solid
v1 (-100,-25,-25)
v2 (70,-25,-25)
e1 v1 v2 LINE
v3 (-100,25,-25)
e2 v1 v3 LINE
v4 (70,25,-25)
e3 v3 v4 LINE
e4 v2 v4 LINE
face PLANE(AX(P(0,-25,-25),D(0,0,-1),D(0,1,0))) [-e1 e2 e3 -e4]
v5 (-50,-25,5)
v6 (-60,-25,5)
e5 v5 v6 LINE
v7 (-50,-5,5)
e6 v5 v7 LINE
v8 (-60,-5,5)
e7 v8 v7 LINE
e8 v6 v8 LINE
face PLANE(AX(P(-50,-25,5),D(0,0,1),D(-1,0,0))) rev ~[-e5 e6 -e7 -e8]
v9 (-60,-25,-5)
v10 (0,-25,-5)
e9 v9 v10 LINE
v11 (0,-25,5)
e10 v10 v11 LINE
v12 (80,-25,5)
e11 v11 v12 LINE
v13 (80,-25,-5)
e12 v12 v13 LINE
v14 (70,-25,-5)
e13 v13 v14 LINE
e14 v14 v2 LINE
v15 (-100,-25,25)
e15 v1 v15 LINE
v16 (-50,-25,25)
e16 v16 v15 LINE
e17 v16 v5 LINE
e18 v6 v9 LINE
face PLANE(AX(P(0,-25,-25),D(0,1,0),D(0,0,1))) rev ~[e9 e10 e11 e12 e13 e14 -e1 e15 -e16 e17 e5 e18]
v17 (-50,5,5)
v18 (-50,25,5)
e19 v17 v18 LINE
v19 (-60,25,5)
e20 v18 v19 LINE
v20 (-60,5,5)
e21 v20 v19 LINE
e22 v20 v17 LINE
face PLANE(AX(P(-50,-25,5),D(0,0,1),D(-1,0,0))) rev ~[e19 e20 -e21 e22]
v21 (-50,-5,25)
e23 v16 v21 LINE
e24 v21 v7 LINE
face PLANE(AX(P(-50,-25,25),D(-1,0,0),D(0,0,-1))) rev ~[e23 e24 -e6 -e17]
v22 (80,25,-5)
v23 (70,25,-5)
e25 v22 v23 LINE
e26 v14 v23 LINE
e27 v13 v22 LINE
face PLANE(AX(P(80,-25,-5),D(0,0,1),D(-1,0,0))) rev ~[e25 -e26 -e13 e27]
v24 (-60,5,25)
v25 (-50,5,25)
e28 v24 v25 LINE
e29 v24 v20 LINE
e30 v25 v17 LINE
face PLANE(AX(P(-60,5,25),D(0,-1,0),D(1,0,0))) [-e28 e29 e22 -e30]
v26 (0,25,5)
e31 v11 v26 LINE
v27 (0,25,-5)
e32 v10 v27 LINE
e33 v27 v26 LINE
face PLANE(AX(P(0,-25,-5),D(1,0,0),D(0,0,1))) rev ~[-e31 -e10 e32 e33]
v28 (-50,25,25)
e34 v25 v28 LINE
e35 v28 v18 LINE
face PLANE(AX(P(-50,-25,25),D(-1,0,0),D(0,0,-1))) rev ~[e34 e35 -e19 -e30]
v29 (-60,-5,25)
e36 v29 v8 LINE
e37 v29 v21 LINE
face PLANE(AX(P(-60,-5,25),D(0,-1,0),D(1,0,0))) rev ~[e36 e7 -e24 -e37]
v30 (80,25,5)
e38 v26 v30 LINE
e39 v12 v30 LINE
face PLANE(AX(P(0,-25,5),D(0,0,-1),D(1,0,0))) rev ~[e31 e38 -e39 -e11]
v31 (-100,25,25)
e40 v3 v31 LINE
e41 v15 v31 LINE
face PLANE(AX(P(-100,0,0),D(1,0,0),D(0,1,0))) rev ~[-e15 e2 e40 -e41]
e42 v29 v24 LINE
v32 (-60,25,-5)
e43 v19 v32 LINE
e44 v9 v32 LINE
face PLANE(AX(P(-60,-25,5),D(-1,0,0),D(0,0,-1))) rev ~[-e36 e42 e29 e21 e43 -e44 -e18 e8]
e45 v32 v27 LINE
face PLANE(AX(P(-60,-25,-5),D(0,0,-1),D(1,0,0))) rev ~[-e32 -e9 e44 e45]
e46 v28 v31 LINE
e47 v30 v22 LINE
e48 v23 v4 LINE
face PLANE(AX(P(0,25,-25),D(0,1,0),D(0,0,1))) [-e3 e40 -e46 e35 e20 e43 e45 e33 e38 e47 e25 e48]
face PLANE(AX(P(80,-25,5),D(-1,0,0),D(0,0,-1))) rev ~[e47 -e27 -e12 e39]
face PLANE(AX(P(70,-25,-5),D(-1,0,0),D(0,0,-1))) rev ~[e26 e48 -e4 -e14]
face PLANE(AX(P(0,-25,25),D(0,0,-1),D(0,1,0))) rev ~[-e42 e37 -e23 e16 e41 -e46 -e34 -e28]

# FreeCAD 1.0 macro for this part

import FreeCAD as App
import Part
import Sketcher
from FreeCAD import Vector

doc = App.newDocument("Part")
body = doc.addObject("PartDesign::Body", "Body")

# Sketch on YZ plane
sketch1 = body.newObject("Sketcher::SketchObject", "Sketch")
sketch1.AttachmentSupport = (doc.getObject("YZ_Plane"), [""])
sketch1.MapMode = "FlatFace"
sketch1.addGeometry([
    Part.LineSegment(Vector(-25, 25, 0), Vector(-25, -25, 0)),
    Part.LineSegment(Vector(-25, -25, 0), Vector(25, -25, 0)),
    Part.LineSegment(Vector(25, -25, 0), Vector(25, 25, 0)),
    Part.LineSegment(Vector(25, 25, 0), Vector(-25, 25, 0)),
], False)
sketch1.addConstraint([
    Sketcher.Constraint("Coincident", 0, 2, 1, 1),
    Sketcher.Constraint("Coincident", 1, 2, 2, 1),
    Sketcher.Constraint("Coincident", 2, 2, 3, 1),
    Sketcher.Constraint("Coincident", 3, 2, 0, 1),
    Sketcher.Constraint("Vertical", 0),
    Sketcher.Constraint("Horizontal", 1),
    Sketcher.Constraint("Vertical", 2),
    Sketcher.Constraint("Horizontal", 3),
    Sketcher.Constraint("Symmetric", 0, 2, 2, 2, -1, 1),
    Sketcher.Constraint("Equal", 3, 0),
    Sketcher.Constraint("DistanceX", 1, 1, 1, 2, 50.0),
])
pad1 = body.newObject("PartDesign::Pad", "Pad")
pad1.Profile = sketch1
pad1.Length = 200
pad1.Midplane = True

# Sketch on XZ plane
sketch2 = body.newObject("Sketcher::SketchObject", "Sketch001")
sketch2.AttachmentSupport = (doc.getObject("XZ_Plane"), [""])
sketch2.MapMode = "FlatFace"
sketch2.AttachmentOffset = App.Placement(Vector(0, 0, 25), App.Rotation())
sketch2.addGeometry([
    Part.LineSegment(Vector(-60, 5, 0), Vector(-60, -5, 0)),  # 0
    Part.LineSegment(Vector(-60, -5, 0), Vector(0, -5, 0)),  # 1
    Part.LineSegment(Vector(0, -5, 0), Vector(0, 5, 0)),  # 2
    Part.LineSegment(Vector(0, 5, 0), Vector(80, 5, 0)),  # 3
    Part.LineSegment(Vector(80, 5, 0), Vector(80, -5, 0)),  # 4
    Part.LineSegment(Vector(80, -5, 0), Vector(70, -5, 0)),  # 5
    Part.LineSegment(Vector(70, -5, 0), Vector(70, -25, 0)),  # 6
    Part.LineSegment(Vector(70, -25, 0), Vector(100, -25, 0)),  # 7
    Part.LineSegment(Vector(100, -25, 0), Vector(100, 25, 0)),  # 8
    Part.LineSegment(Vector(100, 25, 0), Vector(-50, 25, 0)),  # 9
    Part.LineSegment(Vector(-50, 25, 0), Vector(-50, 5, 0)),  # 10
    Part.LineSegment(Vector(-50, 5, 0), Vector(-60, 5, 0)),  # 11
], False)
sketch2.addConstraint([
    Sketcher.Constraint("Coincident", 0, 2, 1, 1),
    Sketcher.Constraint("Coincident", 1, 2, 2, 1),
    Sketcher.Constraint("Coincident", 2, 2, 3, 1),
    Sketcher.Constraint("Coincident", 3, 2, 4, 1),
    Sketcher.Constraint("Coincident", 4, 2, 5, 1),
    Sketcher.Constraint("Coincident", 5, 2, 6, 1),
    Sketcher.Constraint("Coincident", 6, 2, 7, 1),
    Sketcher.Constraint("Coincident", 7, 2, 8, 1),
    Sketcher.Constraint("Coincident", 8, 2, 9, 1),
    Sketcher.Constraint("Coincident", 9, 2, 10, 1),
    Sketcher.Constraint("Coincident", 10, 2, 11, 1),
    Sketcher.Constraint("Coincident", 11, 2, 0, 1),
    Sketcher.Constraint("Vertical", 0),
    Sketcher.Constraint("Horizontal", 1),
    Sketcher.Constraint("Vertical", 2),
    Sketcher.Constraint("Horizontal", 3),
    Sketcher.Constraint("Vertical", 4),
    Sketcher.Constraint("Horizontal", 5),
    Sketcher.Constraint("Vertical", 6),
    Sketcher.Constraint("Horizontal", 7),
    Sketcher.Constraint("Vertical", 8),
    Sketcher.Constraint("Horizontal", 9),
    Sketcher.Constraint("Vertical", 10),
    Sketcher.Constraint("Horizontal", 11),
    Sketcher.Constraint("Symmetric", 1, 2, 2, 2, -1, 1),
    Sketcher.Constraint("Horizontal", 1, 2, 4, 2),
    Sketcher.Constraint("Horizontal", 3, 2, 10, 2),
    Sketcher.Constraint("Equal", 5, 11),
    Sketcher.Constraint("Equal", 11, 0),
    Sketcher.Constraint("Equal", 6, 10),
    Sketcher.Constraint("DistanceX", 1, 1, 1, 2, 60.0),
    Sketcher.Constraint("DistanceX", 3, 1, 3, 2, 80.0),
    Sketcher.Constraint("DistanceX", 5, 2, 5, 1, 10.0),
    Sketcher.Constraint("DistanceX", 7, 1, 7, 2, 30.0),
    Sketcher.Constraint("DistanceY", 6, 2, 6, 1, 20.0),
])
pocket1 = body.newObject("PartDesign::Pocket", "Pocket")
pocket1.Profile = sketch2
pocket1.Type = "ThroughAll"

# Sketch on XY plane
sketch3 = body.newObject("Sketcher::SketchObject", "Sketch002")
sketch3.AttachmentSupport = (doc.getObject("XY_Plane"), [""])
sketch3.MapMode = "FlatFace"
sketch3.AttachmentOffset = App.Placement(Vector(0, 0, 25), App.Rotation())
sketch3.addGeometry([
    Part.LineSegment(Vector(-60, 5, 0), Vector(-60, -5, 0)),
    Part.LineSegment(Vector(-60, -5, 0), Vector(-50, -5, 0)),
    Part.LineSegment(Vector(-50, -5, 0), Vector(-50, 5, 0)),
    Part.LineSegment(Vector(-50, 5, 0), Vector(-60, 5, 0)),
], False)
sketch3.addConstraint([
    Sketcher.Constraint("Coincident", 0, 2, 1, 1),
    Sketcher.Constraint("Coincident", 1, 2, 2, 1),
    Sketcher.Constraint("Coincident", 2, 2, 3, 1),
    Sketcher.Constraint("Coincident", 3, 2, 0, 1),
    Sketcher.Constraint("Vertical", 0),
    Sketcher.Constraint("Horizontal", 1),
    Sketcher.Constraint("Vertical", 2),
    Sketcher.Constraint("Horizontal", 3),
    Sketcher.Constraint("Equal", 3, 0),
    Sketcher.Constraint("DistanceX", 1, 1, 1, 2, 10.0),
    Sketcher.Constraint("DistanceX", 0, 2, -1, 1, 60.0),
    Sketcher.Constraint("DistanceY", 0, 2, -1, 1, 5.0),
])
pocket2 = body.newObject("PartDesign::Pocket", "Pocket001")
pocket2.Profile = sketch3
pocket2.Length = 20

doc.recompute()
